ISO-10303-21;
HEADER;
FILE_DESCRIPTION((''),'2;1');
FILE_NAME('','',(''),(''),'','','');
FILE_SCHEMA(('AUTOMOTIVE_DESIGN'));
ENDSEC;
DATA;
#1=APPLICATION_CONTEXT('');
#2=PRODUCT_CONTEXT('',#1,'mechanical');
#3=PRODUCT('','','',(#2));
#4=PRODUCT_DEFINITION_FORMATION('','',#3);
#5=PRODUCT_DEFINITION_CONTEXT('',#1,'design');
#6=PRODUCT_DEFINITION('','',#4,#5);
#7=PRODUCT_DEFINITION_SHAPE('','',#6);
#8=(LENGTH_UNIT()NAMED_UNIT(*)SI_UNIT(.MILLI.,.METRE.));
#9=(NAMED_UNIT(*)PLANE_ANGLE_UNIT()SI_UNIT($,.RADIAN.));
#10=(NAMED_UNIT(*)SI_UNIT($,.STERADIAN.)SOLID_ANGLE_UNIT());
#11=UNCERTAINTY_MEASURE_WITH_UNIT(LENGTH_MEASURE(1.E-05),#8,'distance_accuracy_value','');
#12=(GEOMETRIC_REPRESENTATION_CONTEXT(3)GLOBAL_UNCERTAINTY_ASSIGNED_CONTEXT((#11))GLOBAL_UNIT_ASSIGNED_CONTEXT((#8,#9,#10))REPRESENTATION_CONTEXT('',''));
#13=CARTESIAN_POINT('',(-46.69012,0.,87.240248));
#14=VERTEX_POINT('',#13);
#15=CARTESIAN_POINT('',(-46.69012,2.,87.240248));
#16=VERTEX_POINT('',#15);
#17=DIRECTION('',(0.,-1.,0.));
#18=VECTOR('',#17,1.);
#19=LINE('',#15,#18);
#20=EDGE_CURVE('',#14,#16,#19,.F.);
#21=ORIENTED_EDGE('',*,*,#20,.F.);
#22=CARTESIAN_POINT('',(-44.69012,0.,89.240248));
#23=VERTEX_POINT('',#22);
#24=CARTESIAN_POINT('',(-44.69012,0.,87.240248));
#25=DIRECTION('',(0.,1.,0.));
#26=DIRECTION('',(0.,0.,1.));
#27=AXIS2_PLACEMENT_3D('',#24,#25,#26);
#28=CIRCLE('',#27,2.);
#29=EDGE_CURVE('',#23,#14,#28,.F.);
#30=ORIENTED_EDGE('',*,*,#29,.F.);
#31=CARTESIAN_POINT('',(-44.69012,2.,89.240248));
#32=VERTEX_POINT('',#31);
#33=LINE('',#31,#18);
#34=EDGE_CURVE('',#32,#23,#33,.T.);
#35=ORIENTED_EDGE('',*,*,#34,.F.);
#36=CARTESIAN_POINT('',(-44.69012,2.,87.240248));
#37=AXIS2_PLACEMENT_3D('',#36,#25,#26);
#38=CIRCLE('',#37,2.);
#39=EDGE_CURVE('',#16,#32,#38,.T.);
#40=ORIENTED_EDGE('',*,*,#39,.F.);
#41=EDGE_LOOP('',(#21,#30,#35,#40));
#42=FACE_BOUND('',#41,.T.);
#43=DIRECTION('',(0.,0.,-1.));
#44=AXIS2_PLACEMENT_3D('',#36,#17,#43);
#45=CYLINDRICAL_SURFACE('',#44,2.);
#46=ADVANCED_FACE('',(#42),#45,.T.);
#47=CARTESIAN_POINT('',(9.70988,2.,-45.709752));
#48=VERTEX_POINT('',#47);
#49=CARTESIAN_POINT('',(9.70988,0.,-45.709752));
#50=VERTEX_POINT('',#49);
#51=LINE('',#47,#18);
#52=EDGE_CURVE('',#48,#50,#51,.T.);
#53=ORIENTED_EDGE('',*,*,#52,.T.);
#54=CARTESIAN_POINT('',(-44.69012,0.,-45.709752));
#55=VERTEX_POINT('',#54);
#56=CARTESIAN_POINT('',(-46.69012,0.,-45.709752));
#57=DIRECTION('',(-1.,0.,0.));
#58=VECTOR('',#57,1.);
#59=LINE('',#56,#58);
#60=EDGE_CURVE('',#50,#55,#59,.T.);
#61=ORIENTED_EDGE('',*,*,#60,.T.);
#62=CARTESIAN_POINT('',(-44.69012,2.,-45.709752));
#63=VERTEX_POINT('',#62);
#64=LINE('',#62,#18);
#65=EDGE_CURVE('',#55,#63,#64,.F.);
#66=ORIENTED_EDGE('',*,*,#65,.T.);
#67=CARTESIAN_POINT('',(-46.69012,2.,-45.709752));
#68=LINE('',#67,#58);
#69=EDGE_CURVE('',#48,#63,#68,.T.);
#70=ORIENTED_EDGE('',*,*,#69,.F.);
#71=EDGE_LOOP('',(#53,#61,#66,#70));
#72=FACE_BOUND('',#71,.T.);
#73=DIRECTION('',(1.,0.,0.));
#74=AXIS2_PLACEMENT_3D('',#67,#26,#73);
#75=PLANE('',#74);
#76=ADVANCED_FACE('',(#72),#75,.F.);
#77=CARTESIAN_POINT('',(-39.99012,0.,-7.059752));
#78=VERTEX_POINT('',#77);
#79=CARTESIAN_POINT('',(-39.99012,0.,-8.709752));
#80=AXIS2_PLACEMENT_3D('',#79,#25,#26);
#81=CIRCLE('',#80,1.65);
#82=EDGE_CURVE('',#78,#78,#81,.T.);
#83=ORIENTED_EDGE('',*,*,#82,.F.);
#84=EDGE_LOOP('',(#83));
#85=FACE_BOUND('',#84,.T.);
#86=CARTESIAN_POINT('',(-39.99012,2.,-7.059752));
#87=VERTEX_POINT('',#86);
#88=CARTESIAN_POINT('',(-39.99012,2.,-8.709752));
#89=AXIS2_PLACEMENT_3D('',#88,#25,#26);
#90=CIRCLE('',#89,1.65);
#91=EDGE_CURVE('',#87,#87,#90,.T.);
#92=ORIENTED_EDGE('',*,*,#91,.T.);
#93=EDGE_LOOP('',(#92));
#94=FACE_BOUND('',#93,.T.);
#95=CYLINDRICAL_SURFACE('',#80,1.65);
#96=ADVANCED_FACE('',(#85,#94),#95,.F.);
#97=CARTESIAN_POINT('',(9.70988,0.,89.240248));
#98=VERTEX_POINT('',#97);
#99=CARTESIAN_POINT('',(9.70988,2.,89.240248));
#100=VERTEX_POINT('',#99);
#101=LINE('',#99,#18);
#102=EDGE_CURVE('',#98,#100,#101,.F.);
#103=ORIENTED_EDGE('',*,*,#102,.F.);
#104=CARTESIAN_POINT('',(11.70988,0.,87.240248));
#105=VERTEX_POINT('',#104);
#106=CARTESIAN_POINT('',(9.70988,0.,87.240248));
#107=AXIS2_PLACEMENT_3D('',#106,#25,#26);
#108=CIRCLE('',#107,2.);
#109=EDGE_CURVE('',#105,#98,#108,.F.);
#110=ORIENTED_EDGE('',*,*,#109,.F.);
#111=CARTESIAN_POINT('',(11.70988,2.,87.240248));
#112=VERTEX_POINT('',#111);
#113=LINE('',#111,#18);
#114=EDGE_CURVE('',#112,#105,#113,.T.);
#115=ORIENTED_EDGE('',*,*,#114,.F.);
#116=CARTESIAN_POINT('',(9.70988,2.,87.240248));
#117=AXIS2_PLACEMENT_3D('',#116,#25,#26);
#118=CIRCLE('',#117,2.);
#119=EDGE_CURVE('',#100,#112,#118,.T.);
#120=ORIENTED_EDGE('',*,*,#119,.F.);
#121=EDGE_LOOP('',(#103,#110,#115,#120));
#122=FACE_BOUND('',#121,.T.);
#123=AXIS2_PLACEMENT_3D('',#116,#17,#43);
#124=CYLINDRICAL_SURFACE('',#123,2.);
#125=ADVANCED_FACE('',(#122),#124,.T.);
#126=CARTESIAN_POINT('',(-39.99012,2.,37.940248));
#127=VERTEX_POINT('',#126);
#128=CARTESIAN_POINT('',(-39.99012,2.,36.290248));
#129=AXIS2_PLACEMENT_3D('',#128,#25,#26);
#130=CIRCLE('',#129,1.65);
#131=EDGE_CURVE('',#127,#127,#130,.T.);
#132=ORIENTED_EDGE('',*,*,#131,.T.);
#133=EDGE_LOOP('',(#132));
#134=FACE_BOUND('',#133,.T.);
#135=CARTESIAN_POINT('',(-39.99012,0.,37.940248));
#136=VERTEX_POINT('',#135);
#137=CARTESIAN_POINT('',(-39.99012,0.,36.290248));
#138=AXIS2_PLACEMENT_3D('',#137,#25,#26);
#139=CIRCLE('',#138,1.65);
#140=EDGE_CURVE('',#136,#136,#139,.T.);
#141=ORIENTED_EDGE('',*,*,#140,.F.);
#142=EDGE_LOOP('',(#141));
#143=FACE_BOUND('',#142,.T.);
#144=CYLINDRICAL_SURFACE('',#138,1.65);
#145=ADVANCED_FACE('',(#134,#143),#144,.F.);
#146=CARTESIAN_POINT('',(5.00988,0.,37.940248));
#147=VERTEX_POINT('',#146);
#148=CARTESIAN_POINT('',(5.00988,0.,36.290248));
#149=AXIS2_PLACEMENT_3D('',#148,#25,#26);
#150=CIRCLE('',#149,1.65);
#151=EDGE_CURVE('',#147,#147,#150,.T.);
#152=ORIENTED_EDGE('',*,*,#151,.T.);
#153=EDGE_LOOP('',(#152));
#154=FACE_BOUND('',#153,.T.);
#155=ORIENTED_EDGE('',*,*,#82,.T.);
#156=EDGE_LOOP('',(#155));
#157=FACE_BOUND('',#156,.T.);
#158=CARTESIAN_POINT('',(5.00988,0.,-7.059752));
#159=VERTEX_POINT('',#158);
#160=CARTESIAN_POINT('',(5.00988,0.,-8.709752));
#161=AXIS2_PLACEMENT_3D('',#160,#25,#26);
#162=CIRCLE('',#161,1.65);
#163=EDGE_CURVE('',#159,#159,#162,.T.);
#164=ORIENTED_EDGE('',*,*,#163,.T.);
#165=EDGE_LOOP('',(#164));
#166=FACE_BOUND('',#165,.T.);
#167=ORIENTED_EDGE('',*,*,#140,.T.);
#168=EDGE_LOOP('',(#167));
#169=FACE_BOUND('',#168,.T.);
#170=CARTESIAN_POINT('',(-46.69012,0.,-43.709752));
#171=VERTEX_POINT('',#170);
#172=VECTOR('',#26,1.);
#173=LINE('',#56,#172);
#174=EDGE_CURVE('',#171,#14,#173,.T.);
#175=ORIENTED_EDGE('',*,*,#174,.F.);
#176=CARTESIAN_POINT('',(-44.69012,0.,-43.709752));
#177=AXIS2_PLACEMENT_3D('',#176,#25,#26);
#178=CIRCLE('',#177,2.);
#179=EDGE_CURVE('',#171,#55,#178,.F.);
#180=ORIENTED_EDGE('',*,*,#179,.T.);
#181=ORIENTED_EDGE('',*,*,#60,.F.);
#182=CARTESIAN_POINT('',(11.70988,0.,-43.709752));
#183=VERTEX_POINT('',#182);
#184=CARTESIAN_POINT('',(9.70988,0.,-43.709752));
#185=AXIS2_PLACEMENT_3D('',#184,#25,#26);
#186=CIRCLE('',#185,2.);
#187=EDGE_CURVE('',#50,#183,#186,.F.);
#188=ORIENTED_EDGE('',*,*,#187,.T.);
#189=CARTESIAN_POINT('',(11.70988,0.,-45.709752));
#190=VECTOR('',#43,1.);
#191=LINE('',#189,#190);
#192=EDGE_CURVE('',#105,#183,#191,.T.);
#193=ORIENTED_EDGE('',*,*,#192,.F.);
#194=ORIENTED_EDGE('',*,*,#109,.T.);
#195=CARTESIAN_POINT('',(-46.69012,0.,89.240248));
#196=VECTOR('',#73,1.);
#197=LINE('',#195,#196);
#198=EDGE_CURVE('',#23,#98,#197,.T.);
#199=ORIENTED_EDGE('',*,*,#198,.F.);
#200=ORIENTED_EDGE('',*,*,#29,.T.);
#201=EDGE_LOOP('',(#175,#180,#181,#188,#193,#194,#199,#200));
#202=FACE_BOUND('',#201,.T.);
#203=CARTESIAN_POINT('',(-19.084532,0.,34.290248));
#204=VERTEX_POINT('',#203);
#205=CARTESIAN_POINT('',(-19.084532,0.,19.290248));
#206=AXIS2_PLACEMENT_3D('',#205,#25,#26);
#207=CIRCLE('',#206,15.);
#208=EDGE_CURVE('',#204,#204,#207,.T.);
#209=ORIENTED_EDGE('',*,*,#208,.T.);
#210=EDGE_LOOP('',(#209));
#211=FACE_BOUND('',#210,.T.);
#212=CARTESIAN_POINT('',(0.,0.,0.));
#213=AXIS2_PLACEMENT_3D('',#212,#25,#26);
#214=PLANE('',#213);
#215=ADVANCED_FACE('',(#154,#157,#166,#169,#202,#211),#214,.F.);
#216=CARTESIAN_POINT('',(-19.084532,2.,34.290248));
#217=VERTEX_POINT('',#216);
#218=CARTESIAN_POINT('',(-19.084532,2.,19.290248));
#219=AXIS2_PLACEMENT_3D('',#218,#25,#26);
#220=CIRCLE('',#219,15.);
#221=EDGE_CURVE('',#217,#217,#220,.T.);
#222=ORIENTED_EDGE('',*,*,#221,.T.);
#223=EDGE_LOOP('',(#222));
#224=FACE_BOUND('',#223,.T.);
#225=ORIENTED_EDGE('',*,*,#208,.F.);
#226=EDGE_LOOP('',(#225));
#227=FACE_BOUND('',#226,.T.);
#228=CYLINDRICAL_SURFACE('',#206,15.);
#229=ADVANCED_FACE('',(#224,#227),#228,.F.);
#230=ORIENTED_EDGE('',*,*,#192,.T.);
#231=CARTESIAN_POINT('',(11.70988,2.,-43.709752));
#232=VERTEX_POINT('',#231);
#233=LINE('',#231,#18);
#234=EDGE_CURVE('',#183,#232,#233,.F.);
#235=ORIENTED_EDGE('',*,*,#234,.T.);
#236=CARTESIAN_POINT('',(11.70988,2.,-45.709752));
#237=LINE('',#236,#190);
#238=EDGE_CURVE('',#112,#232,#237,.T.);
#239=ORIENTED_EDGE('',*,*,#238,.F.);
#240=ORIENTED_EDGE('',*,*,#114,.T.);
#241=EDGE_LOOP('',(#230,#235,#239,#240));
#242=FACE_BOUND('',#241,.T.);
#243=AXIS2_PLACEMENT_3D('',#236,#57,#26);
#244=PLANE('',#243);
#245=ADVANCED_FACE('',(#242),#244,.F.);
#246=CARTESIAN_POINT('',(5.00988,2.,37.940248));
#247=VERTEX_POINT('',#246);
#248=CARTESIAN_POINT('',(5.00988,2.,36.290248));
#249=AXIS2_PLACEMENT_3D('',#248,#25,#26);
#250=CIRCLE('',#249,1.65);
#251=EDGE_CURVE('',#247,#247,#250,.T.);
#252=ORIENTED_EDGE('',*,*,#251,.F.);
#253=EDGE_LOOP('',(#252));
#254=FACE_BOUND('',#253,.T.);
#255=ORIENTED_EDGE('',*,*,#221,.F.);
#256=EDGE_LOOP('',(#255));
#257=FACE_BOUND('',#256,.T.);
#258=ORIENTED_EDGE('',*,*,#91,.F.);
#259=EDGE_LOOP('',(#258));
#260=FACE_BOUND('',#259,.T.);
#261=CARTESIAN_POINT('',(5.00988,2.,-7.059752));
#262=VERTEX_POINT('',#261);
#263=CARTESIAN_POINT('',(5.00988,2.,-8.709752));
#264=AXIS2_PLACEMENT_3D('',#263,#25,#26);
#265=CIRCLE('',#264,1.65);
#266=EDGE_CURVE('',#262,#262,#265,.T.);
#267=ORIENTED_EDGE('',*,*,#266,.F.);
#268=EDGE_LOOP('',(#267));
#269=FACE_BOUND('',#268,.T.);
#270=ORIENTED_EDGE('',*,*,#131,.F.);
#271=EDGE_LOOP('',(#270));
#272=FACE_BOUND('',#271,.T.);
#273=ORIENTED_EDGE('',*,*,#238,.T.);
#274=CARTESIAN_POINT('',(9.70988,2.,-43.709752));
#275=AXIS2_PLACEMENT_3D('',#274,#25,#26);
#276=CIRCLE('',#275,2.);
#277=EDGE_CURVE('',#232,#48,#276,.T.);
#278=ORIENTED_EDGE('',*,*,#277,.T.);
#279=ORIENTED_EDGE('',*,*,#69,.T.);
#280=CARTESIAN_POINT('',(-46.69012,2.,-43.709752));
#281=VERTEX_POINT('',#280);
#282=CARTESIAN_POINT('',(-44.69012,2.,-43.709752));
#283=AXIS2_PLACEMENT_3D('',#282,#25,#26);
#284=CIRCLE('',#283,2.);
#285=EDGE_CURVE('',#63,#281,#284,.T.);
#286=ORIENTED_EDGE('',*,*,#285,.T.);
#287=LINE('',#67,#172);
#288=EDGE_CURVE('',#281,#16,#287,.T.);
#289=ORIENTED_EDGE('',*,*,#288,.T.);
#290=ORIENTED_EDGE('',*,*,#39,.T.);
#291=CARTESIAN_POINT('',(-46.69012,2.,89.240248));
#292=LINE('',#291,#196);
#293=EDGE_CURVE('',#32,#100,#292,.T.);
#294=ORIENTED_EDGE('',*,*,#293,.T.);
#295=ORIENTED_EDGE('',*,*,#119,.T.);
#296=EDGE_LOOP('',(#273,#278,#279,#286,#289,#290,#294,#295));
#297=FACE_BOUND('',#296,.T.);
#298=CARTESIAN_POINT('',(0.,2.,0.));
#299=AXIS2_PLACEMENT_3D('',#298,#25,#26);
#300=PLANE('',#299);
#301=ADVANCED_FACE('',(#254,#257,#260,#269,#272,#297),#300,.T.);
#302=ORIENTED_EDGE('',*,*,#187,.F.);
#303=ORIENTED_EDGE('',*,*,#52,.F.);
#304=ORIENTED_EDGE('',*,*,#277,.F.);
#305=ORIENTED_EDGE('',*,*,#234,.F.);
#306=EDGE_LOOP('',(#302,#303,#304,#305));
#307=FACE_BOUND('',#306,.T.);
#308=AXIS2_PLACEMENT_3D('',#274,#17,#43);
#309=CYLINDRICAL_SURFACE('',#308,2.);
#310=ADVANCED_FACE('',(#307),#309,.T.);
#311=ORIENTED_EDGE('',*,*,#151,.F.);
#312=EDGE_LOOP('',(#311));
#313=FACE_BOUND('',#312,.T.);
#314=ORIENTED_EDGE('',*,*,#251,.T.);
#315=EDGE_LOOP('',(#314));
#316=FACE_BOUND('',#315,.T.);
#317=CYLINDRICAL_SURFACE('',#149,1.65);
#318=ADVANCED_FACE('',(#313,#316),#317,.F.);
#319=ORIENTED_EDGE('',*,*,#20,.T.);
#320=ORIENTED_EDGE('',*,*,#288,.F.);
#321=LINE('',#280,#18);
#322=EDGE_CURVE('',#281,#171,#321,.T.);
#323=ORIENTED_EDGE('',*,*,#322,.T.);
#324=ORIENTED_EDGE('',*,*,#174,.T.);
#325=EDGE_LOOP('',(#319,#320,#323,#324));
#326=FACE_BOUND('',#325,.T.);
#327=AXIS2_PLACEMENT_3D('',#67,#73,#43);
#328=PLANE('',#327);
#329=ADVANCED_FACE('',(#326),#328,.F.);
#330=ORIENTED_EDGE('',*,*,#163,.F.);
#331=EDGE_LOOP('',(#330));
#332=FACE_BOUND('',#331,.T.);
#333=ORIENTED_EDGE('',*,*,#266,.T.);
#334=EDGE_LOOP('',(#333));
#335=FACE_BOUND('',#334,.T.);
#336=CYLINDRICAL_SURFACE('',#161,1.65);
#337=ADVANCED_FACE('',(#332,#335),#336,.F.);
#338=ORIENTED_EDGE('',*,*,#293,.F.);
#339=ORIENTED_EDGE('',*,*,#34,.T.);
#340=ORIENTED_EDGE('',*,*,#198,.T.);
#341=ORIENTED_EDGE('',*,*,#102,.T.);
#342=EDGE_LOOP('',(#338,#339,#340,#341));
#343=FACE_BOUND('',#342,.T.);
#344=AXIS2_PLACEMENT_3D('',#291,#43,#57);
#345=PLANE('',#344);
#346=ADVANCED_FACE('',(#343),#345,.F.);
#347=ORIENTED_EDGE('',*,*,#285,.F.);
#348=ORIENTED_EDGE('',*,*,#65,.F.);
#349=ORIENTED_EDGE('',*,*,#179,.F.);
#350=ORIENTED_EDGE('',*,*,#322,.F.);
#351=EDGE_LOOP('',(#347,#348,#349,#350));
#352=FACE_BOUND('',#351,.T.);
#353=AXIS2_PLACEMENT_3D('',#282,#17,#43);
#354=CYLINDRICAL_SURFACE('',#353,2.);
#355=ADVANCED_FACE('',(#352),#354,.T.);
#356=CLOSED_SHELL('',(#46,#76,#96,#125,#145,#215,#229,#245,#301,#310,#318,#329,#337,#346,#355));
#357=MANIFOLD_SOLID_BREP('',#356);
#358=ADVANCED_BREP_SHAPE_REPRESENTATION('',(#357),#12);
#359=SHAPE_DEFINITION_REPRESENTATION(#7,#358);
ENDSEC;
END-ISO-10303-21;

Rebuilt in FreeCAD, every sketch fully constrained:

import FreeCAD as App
import Part
import Sketcher
Q = App.Units.Quantity


def edges_at(feature, points):
    """Names of the edges that pass closest to the given points."""
    edges = feature.Shape.Edges
    near = lambda p: min(range(len(edges)), key=lambda i: edges[i].distToShape(Part.Vertex(*p))[0])
    return sorted({f"Edge{near(p) + 1}" for p in points})

doc = App.newDocument("Part")
body = doc.addObject("PartDesign::Body", "Body")

# Sketch on XZ plane
sketch1 = body.newObject("Sketcher::SketchObject", "Sketch")
sketch1.AttachmentSupport = (doc.getObject("XZ_Plane"), [""])
sketch1.MapMode = "FlatFace"
sketch1.addGeometry(Part.LineSegment(App.Vector(-47, -46, 0), App.Vector(-47, 89, 0)), False)
sketch1.addGeometry(Part.LineSegment(App.Vector(-47, 89, 0), App.Vector(12, 89, 0)), False)
sketch1.addGeometry(Part.LineSegment(App.Vector(12, 89, 0), App.Vector(12, -46, 0)), False)
sketch1.addGeometry(Part.LineSegment(App.Vector(12, -46, 0), App.Vector(-47, -46, 0)), False)
sketch1.addConstraint(Sketcher.Constraint("Coincident", 0, 2, 1, 1))
sketch1.addConstraint(Sketcher.Constraint("Coincident", 1, 2, 2, 1))
sketch1.addConstraint(Sketcher.Constraint("Coincident", 2, 2, 3, 1))
sketch1.addConstraint(Sketcher.Constraint("Coincident", 3, 2, 0, 1))
sketch1.addConstraint(Sketcher.Constraint("Vertical", 0))
sketch1.addConstraint(Sketcher.Constraint("Horizontal", 1))
sketch1.addConstraint(Sketcher.Constraint("Vertical", 2))
sketch1.addConstraint(Sketcher.Constraint("Horizontal", 3))
sketch1.addConstraint(Sketcher.Constraint("DistanceX", 1, 1, 1, 2, Q("58.4 mm")))
sketch1.addConstraint(Sketcher.Constraint("DistanceY", 0, 1, 0, 2, Q("134.95 mm")))
sketch1.addConstraint(Sketcher.Constraint("DistanceX", 0, 2, -1, 1, Q("46.69012 mm")))
sketch1.addConstraint(Sketcher.Constraint("DistanceY", -1, 1, 0, 2, Q("89.240248 mm")))
pad1 = body.newObject("PartDesign::Pad", "Pad")
pad1.Profile = sketch1
pad1.Length = 2
pad1.Reversed = True
doc.recompute()

fillet = body.newObject("PartDesign::Fillet", "Fillet")
fillet.Base = (pad1, edges_at(pad1, [
    (-46.69, 1, -45.71),
    (11.71, 1, -45.71),
    (11.71, 1, 89.24),
    (-46.69, 1, 89.24),
]))
fillet.Radius = 2

# Sketch on XZ plane
sketch2 = body.newObject("Sketcher::SketchObject", "Sketch001")
sketch2.AttachmentSupport = (doc.getObject("XZ_Plane"), [""])
sketch2.MapMode = "FlatFace"
sketch2.AttachmentOffset = App.Placement(App.Vector(0, 0, -2), App.Rotation())
sketch2.addGeometry(Part.Circle(App.Vector(-40, -8.7, 0), App.Vector(0, 0, 1), 1.6), False)
sketch2.addGeometry(Part.Circle(App.Vector(5, -8.7, 0), App.Vector(0, 0, 1), 1.6), False)
sketch2.addGeometry(Part.Circle(App.Vector(5, 36.3, 0), App.Vector(0, 0, 1), 1.6), False)
sketch2.addGeometry(Part.Circle(App.Vector(-40, 36.3, 0), App.Vector(0, 0, 1), 1.6), False)
sketch2.addConstraint(Sketcher.Constraint("Equal", 0, 1))
sketch2.addConstraint(Sketcher.Constraint("Equal", 1, 2))
sketch2.addConstraint(Sketcher.Constraint("Equal", 2, 3))
sketch2.addConstraint(Sketcher.Constraint("Horizontal", 0, 3, 1, 3))
sketch2.addConstraint(Sketcher.Constraint("Horizontal", 2, 3, 3, 3))
sketch2.addConstraint(Sketcher.Constraint("Vertical", 1, 3, 2, 3))
sketch2.addConstraint(Sketcher.Constraint("Vertical", 0, 3, 3, 3))
sketch2.addConstraint(Sketcher.Constraint("Diameter", 0, Q("3.3 mm")))
sketch2.addConstraint(Sketcher.Constraint("DistanceX", 0, 3, 1, 3, Q("45 mm")))
sketch2.addConstraint(Sketcher.Constraint("DistanceY", 1, 3, 2, 3, Q("45 mm")))
sketch2.addConstraint(Sketcher.Constraint("DistanceX", 0, 3, -1, 1, Q("39.99012 mm")))
sketch2.addConstraint(Sketcher.Constraint("DistanceY", 0, 3, -1, 1, Q("8.709752 mm")))
pocket1 = body.newObject("PartDesign::Pocket", "Pocket")
pocket1.Profile = sketch2
pocket1.Type = "ThroughAll"
pocket1.Reversed = True

# Sketch on XZ plane
sketch3 = body.newObject("Sketcher::SketchObject", "Sketch002")
sketch3.AttachmentSupport = (doc.getObject("XZ_Plane"), [""])
sketch3.MapMode = "FlatFace"
sketch3.AttachmentOffset = App.Placement(App.Vector(0, 0, -2), App.Rotation())
sketch3.addGeometry(Part.Circle(App.Vector(-19, 19, 0), App.Vector(0, 0, 1), 15), False)
sketch3.addConstraint(Sketcher.Constraint("Diameter", 0, Q("30 mm")))
sketch3.addConstraint(Sketcher.Constraint("DistanceX", 0, 3, -1, 1, Q("19.084532 mm")))
sketch3.addConstraint(Sketcher.Constraint("DistanceY", -1, 1, 0, 3, Q("19.290248 mm")))
pocket2 = body.newObject("PartDesign::Pocket", "Pocket001")
pocket2.Profile = sketch3
pocket2.Type = "ThroughAll"
pocket2.Reversed = True

doc.recompute()
